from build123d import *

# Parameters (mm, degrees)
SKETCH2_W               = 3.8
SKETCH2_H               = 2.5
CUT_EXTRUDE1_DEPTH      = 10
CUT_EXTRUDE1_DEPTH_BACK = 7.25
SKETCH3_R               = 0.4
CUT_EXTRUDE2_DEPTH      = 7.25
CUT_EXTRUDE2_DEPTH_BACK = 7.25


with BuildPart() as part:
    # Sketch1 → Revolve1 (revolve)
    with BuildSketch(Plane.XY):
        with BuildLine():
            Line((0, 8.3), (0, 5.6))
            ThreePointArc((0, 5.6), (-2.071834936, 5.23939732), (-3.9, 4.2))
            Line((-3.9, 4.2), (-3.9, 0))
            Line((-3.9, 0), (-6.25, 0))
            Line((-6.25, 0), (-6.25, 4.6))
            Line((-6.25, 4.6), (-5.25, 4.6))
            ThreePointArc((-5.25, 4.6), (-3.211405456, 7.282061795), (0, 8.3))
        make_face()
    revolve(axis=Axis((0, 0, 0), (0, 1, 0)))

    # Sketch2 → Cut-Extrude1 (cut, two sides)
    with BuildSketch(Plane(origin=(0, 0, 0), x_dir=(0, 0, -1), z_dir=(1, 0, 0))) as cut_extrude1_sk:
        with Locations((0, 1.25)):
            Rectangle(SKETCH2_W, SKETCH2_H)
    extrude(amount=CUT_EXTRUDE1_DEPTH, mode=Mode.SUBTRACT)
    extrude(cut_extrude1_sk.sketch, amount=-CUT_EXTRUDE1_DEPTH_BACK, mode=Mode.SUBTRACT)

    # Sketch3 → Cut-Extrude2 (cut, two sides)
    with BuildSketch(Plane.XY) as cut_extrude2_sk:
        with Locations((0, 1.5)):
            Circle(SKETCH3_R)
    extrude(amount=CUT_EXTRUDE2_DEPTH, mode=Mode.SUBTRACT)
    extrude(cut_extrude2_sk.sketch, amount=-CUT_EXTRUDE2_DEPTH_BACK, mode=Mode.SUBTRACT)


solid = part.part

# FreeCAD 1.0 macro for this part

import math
import FreeCAD as App
import Part
import Sketcher

V = App.Vector
Q = App.Units.Quantity

doc = App.newDocument("Part")
body = doc.addObject("PartDesign::Body", "Body")

sketch1 = body.newObject("Sketcher::SketchObject", "Sketch")
sketch1.AttachmentSupport = (doc.getObject("XY_Plane"), [""])
sketch1.MapMode = "FlatFace"
sketch1.addGeometry([
    Part.LineSegment(V(0, 5.6, 0), V(0, 8.3, 0)),
    Part.ArcOfCircle(Part.Circle(V(0, 2.725338, 0), V(0, 0, 1), 5.574662), math.radians(90), math.radians(160.349446)),
    Part.LineSegment(V(-5.25, 4.6, 0), V(-6.25, 4.6, 0)),
    Part.LineSegment(V(-6.25, 4.6, 0), V(-6.25, 0, 0)),
    Part.LineSegment(V(-6.25, 0, 0), V(-3.9, 0, 0)),
    Part.LineSegment(V(-3.9, 0, 0), V(-3.9, 4.2, 0)),
    Part.ArcOfCircle(Part.Circle(V(0, -0.532143, 0), V(0, 0, 1), 6.132143), math.radians(90), math.radians(129.493673)),
], False)
sketch1.addConstraint([
    Sketcher.Constraint("Coincident", 0, 2, 1, 1),
    Sketcher.Constraint("Coincident", 1, 2, 2, 1),
    Sketcher.Constraint("Coincident", 2, 2, 3, 1),
    Sketcher.Constraint("Coincident", 3, 2, 4, 1),
    Sketcher.Constraint("Coincident", 4, 2, 5, 1),
    Sketcher.Constraint("Coincident", 5, 2, 6, 2),
    Sketcher.Constraint("Coincident", 6, 1, 0, 1),
    Sketcher.Constraint("Vertical", 0),
    Sketcher.Constraint("Horizontal", 2),
    Sketcher.Constraint("Vertical", 3),
    Sketcher.Constraint("Horizontal", 4),
    Sketcher.Constraint("Vertical", 5),
    Sketcher.Constraint("PointOnObject", 1, 3, -2),
    Sketcher.Constraint("PointOnObject", 6, 3, -2),
    Sketcher.Constraint("PointOnObject", 0, 2, -2),
    Sketcher.Constraint("PointOnObject", 3, 2, -1),
    Sketcher.Constraint("DistanceX", 2, 2, 2, 1, Q("1 mm")),
    Sketcher.Constraint("DistanceY", 0, 1, 0, 2, Q("2.7 mm")),
    Sketcher.Constraint("DistanceY", 3, 2, 3, 1, Q("4.6 mm")),
    Sketcher.Constraint("DistanceY", 5, 1, 5, 2, Q("4.2 mm")),
    Sketcher.Constraint("DistanceY", 1, 2, 6, 1, Q("1 mm")),
    Sketcher.Constraint("DistanceX", 4, 1, 4, 2, Q("2.35 mm")),
    Sketcher.Constraint("DistanceX", 4, 2, -1, 1, Q("3.9 mm")),
])
revolution = body.newObject("PartDesign::Revolution", "Revolution")
revolution.Profile = sketch1
revolution.ReferenceAxis = (sketch1, ["V_Axis"])
revolution.Angle = 360

sketch2 = body.newObject("Sketcher::SketchObject", "Sketch001")
sketch2.AttachmentSupport = (doc.getObject("YZ_Plane"), [""])
sketch2.MapMode = "FlatFace"
sketch2.addGeometry([
    Part.LineSegment(V(2.5, 1.9, 0), V(0, 1.9, 0)),
    Part.LineSegment(V(0, 1.9, 0), V(0, -1.9, 0)),
    Part.LineSegment(V(0, -1.9, 0), V(2.5, -1.9, 0)),
    Part.LineSegment(V(2.5, -1.9, 0), V(2.5, 1.9, 0)),
], False)
sketch2.addConstraint([
    Sketcher.Constraint("Coincident", 0, 2, 1, 1),
    Sketcher.Constraint("Coincident", 1, 2, 2, 1),
    Sketcher.Constraint("Coincident", 2, 2, 3, 1),
    Sketcher.Constraint("Coincident", 3, 2, 0, 1),
    Sketcher.Constraint("Horizontal", 0),
    Sketcher.Constraint("Vertical", 1),
    Sketcher.Constraint("Horizontal", 2),
    Sketcher.Constraint("Vertical", 3),
    Sketcher.Constraint("Symmetric", 0, 2, 1, 2, -1, 1),
    Sketcher.Constraint("DistanceX", 0, 2, 0, 1, Q("2.5 mm")),
    Sketcher.Constraint("DistanceY", 1, 2, 1, 1, Q("3.8 mm")),
])
pocket1 = body.newObject("PartDesign::Pocket", "Pocket")
pocket1.Profile = sketch2
pocket1.Type = "ThroughAll"
pocket1.Midplane = True

sketch3 = body.newObject("Sketcher::SketchObject", "Sketch002")
sketch3.AttachmentSupport = (doc.getObject("XY_Plane"), [""])
sketch3.MapMode = "FlatFace"
sketch3.addGeometry(Part.Circle(V(0, 1.5, 0), V(0, 0, 1), 0.4), False)
sketch3.addConstraint([
    Sketcher.Constraint("PointOnObject", 0, 3, -2),
    Sketcher.Constraint("Diameter", 0, Q("0.8 mm")),
    Sketcher.Constraint("DistanceY", -1, 1, 0, 3, Q("1.5 mm")),
])
pocket2 = body.newObject("PartDesign::Pocket", "Pocket001")
pocket2.Profile = sketch3
pocket2.Type = "ThroughAll"
pocket2.Midplane = True

doc.recompute()
